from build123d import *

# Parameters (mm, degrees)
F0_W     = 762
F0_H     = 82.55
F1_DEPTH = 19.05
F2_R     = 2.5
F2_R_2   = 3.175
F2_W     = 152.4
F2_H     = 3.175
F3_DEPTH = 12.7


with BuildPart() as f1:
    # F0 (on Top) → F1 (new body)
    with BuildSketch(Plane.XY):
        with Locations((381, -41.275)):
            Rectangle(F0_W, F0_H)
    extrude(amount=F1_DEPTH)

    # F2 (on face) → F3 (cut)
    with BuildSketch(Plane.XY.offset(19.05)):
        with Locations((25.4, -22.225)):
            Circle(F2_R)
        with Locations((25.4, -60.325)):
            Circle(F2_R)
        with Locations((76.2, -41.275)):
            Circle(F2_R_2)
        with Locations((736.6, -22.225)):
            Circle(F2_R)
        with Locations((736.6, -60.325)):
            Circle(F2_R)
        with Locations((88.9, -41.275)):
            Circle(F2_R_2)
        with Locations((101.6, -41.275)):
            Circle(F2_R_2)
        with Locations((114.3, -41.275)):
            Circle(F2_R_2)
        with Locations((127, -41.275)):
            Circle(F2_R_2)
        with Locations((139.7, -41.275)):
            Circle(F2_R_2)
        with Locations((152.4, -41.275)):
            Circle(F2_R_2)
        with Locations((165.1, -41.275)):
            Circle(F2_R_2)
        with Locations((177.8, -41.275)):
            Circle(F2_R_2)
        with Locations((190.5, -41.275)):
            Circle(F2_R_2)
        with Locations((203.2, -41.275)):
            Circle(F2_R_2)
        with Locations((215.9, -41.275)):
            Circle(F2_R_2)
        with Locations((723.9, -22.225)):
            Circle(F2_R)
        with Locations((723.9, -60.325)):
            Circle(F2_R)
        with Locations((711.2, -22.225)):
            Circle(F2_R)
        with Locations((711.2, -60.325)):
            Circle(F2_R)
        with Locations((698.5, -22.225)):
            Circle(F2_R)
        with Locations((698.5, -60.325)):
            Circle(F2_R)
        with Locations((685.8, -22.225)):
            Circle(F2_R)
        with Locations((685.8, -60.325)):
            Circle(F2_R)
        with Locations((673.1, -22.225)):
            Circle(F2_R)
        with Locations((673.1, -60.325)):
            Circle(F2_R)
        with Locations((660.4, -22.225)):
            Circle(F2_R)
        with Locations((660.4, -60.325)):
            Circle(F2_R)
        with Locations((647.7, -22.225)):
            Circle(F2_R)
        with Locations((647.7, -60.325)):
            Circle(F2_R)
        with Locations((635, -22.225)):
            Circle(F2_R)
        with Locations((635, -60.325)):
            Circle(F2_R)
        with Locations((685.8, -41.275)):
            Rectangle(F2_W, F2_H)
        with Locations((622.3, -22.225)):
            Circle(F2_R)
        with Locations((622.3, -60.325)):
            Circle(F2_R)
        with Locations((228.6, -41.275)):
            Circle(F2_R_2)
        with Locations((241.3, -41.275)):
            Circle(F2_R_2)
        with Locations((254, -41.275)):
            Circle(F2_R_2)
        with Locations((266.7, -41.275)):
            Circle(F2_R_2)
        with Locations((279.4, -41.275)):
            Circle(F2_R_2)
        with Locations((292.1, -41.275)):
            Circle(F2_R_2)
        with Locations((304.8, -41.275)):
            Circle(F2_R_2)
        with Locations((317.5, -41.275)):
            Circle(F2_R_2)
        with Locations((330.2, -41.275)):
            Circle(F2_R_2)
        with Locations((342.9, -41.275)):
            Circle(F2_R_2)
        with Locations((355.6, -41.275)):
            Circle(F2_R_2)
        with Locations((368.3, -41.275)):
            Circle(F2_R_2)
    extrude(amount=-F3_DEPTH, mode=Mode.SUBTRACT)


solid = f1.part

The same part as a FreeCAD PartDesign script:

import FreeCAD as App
import Part
import Sketcher
from FreeCAD import Vector
Q = App.Units.Quantity


def add_polygon(sketch, points):
    """Adds a closed chain of lines whose ends are joined by coincident constraints."""
    first, n = sketch.GeometryCount, len(points)
    for a, b in zip(points, points[1:] + points[:1]):
        sketch.addGeometry(Part.LineSegment(App.Vector(*a, 0), App.Vector(*b, 0)), False)
    for i in range(n):
        sketch.addConstraint(Sketcher.Constraint("Coincident", first + i, 2, first + (i + 1) % n, 1))

doc = App.newDocument("Part")
params = doc.addObject("Spreadsheet::Sheet", "Params")
for row, (alias, value) in enumerate([
    ("sketch1_width", "30 in"),
    ("sketch1_height", "3.25 in"),
    ("pad1_length", "0.75 in"),
    ("sketch2_diameter", "0.25 in"),
    ("sketch2_width", "6 in"),
    ("sketch2_height", "0.125 in"),
    ("pocket1_length", "0.5 in"),
], start=1):
    params.set(f"A{row}", alias)
    params.set(f"B{row}", "=" + value)
    params.setAlias(f"B{row}", alias)

body = doc.addObject("PartDesign::Body", "Body")

# Sketch on XY plane
sketch1 = body.newObject("Sketcher::SketchObject", "Sketch")
sketch1.AttachmentSupport = (doc.getObject("XY_Plane"), [""])
sketch1.MapMode = "FlatFace"
add_polygon(sketch1, [(0, 0), (0, -83), (762, -83), (762, 0)])  # lines 0-3
sketch1.addConstraint(Sketcher.Constraint("Vertical", 0))
sketch1.addConstraint(Sketcher.Constraint("Horizontal", 1))
sketch1.addConstraint(Sketcher.Constraint("Vertical", 2))
sketch1.addConstraint(Sketcher.Constraint("Horizontal", 3))
sketch1.addConstraint(Sketcher.Constraint("Coincident", 3, 2, -1, 1))
sketch1.addConstraint(Sketcher.Constraint("DistanceX", 1, 1, 1, 2, Q("30 in")))
sketch1.addConstraint(Sketcher.Constraint("DistanceY", 0, 2, 0, 1, Q("3.25 in")))
sketch1.setExpression("Constraints[9]", "Params.sketch1_width")
sketch1.setExpression("Constraints[10]", "Params.sketch1_height")
pad1 = body.newObject("PartDesign::Pad", "Pad")
pad1.Profile = sketch1
pad1.setExpression("Length", "Params.pad1_length")

# Sketch on XY plane
sketch2 = body.newObject("Sketcher::SketchObject", "Sketch001")
sketch2.AttachmentSupport = (doc.getObject("XY_Plane"), [""])
sketch2.MapMode = "FlatFace"
sketch2.AttachmentOffset = App.Placement(Vector(0, 0, 0.75 * 25.4), App.Rotation())
sketch2.addGeometry(Part.Circle(Vector(25.4, -22.2, 0), Vector(0, 0, 1), 2.5), False)  # 0
sketch2.addGeometry(Part.Circle(Vector(25.4, -60.3, 0), Vector(0, 0, 1), 2.5), False)  # 1
sketch2.addGeometry(Part.Circle(Vector(76.2, -41.3, 0), Vector(0, 0, 1), 3.2), False)  # 2
sketch2.addGeometry(Part.Circle(Vector(736.6, -22.2, 0), Vector(0, 0, 1), 2.5), False)  # 3
sketch2.addGeometry(Part.Circle(Vector(736.6, -60.3, 0), Vector(0, 0, 1), 2.5), False)  # 4
sketch2.addGeometry(Part.Circle(Vector(88.9, -41.3, 0), Vector(0, 0, 1), 3.2), False)  # 5
sketch2.addGeometry(Part.Circle(Vector(101.6, -41.3, 0), Vector(0, 0, 1), 3.2), False)  # 6
sketch2.addGeometry(Part.Circle(Vector(114.3, -41.3, 0), Vector(0, 0, 1), 3.2), False)  # 7
sketch2.addGeometry(Part.Circle(Vector(127, -41.3, 0), Vector(0, 0, 1), 3.2), False)  # 8
sketch2.addGeometry(Part.Circle(Vector(139.7, -41.3, 0), Vector(0, 0, 1), 3.2), False)  # 9
sketch2.addGeometry(Part.Circle(Vector(152.4, -41.3, 0), Vector(0, 0, 1), 3.2), False)  # 10
sketch2.addGeometry(Part.Circle(Vector(165.1, -41.3, 0), Vector(0, 0, 1), 3.2), False)  # 11
sketch2.addGeometry(Part.Circle(Vector(177.8, -41.3, 0), Vector(0, 0, 1), 3.2), False)  # 12
sketch2.addGeometry(Part.Circle(Vector(190.5, -41.3, 0), Vector(0, 0, 1), 3.2), False)  # 13
sketch2.addGeometry(Part.Circle(Vector(203.2, -41.3, 0), Vector(0, 0, 1), 3.2), False)  # 14
sketch2.addGeometry(Part.Circle(Vector(215.9, -41.3, 0), Vector(0, 0, 1), 3.2), False)  # 15
sketch2.addGeometry(Part.Circle(Vector(723.9, -22.2, 0), Vector(0, 0, 1), 2.5), False)  # 16
sketch2.addGeometry(Part.Circle(Vector(723.9, -60.3, 0), Vector(0, 0, 1), 2.5), False)  # 17
sketch2.addGeometry(Part.Circle(Vector(711.2, -22.2, 0), Vector(0, 0, 1), 2.5), False)  # 18
sketch2.addGeometry(Part.Circle(Vector(711.2, -60.3, 0), Vector(0, 0, 1), 2.5), False)  # 19
sketch2.addGeometry(Part.Circle(Vector(698.5, -22.2, 0), Vector(0, 0, 1), 2.5), False)  # 20
sketch2.addGeometry(Part.Circle(Vector(698.5, -60.3, 0), Vector(0, 0, 1), 2.5), False)  # 21
sketch2.addGeometry(Part.Circle(Vector(685.8, -22.2, 0), Vector(0, 0, 1), 2.5), False)  # 22
sketch2.addGeometry(Part.Circle(Vector(685.8, -60.3, 0), Vector(0, 0, 1), 2.5), False)  # 23
sketch2.addGeometry(Part.Circle(Vector(673.1, -22.2, 0), Vector(0, 0, 1), 2.5), False)  # 24
sketch2.addGeometry(Part.Circle(Vector(673.1, -60.3, 0), Vector(0, 0, 1), 2.5), False)  # 25
sketch2.addGeometry(Part.Circle(Vector(660.4, -22.2, 0), Vector(0, 0, 1), 2.5), False)  # 26
sketch2.addGeometry(Part.Circle(Vector(660.4, -60.3, 0), Vector(0, 0, 1), 2.5), False)  # 27
sketch2.addGeometry(Part.Circle(Vector(647.7, -22.2, 0), Vector(0, 0, 1), 2.5), False)  # 28
sketch2.addGeometry(Part.Circle(Vector(647.7, -60.3, 0), Vector(0, 0, 1), 2.5), False)  # 29
sketch2.addGeometry(Part.Circle(Vector(635, -22.2, 0), Vector(0, 0, 1), 2.5), False)  # 30
sketch2.addGeometry(Part.Circle(Vector(635, -60.3, 0), Vector(0, 0, 1), 2.5), False)  # 31
add_polygon(sketch2, [(609.6, -39.7), (609.6, -42.9), (762, -42.9), (762, -39.7)])  # lines 32-35
sketch2.addGeometry(Part.Circle(Vector(622.3, -22.2, 0), Vector(0, 0, 1), 2.5), False)  # 36
sketch2.addGeometry(Part.Circle(Vector(622.3, -60.3, 0), Vector(0, 0, 1), 2.5), False)  # 37
sketch2.addGeometry(Part.Circle(Vector(228.6, -41.3, 0), Vector(0, 0, 1), 3.2), False)  # 38
sketch2.addGeometry(Part.Circle(Vector(241.3, -41.3, 0), Vector(0, 0, 1), 3.2), False)  # 39
sketch2.addGeometry(Part.Circle(Vector(254, -41.3, 0), Vector(0, 0, 1), 3.2), False)  # 40
sketch2.addGeometry(Part.Circle(Vector(266.7, -41.3, 0), Vector(0, 0, 1), 3.2), False)  # 41
sketch2.addGeometry(Part.Circle(Vector(279.4, -41.3, 0), Vector(0, 0, 1), 3.2), False)  # 42
sketch2.addGeometry(Part.Circle(Vector(292.1, -41.3, 0), Vector(0, 0, 1), 3.2), False)  # 43
sketch2.addGeometry(Part.Circle(Vector(304.8, -41.3, 0), Vector(0, 0, 1), 3.2), False)  # 44
sketch2.addGeometry(Part.Circle(Vector(317.5, -41.3, 0), Vector(0, 0, 1), 3.2), False)  # 45
sketch2.addGeometry(Part.Circle(Vector(330.2, -41.3, 0), Vector(0, 0, 1), 3.2), False)  # 46
sketch2.addGeometry(Part.Circle(Vector(342.9, -41.3, 0), Vector(0, 0, 1), 3.2), False)  # 47
sketch2.addGeometry(Part.Circle(Vector(355.6, -41.3, 0), Vector(0, 0, 1), 3.2), False)  # 48
sketch2.addGeometry(Part.Circle(Vector(368.3, -41.3, 0), Vector(0, 0, 1), 3.2), False)  # 49
sketch2.addConstraint(Sketcher.Constraint("Vertical", 32))
sketch2.addConstraint(Sketcher.Constraint("Horizontal", 33))
sketch2.addConstraint(Sketcher.Constraint("Vertical", 34))
sketch2.addConstraint(Sketcher.Constraint("Horizontal", 35))
sketch2.addConstraint(Sketcher.Constraint("Equal", 0, 1))
sketch2.addConstraint(Sketcher.Constraint("Equal", 1, 3))
sketch2.addConstraint(Sketcher.Constraint("Equal", 3, 4))
sketch2.addConstraint(Sketcher.Constraint("Equal", 2, 5))
sketch2.addConstraint(Sketcher.Constraint("Equal", 5, 6))
sketch2.addConstraint(Sketcher.Constraint("Equal", 6, 7))
sketch2.addConstraint(Sketcher.Constraint("Equal", 7, 8))
sketch2.addConstraint(Sketcher.Constraint("Equal", 8, 9))
sketch2.addConstraint(Sketcher.Constraint("Equal", 9, 10))
sketch2.addConstraint(Sketcher.Constraint("Equal", 10, 11))
sketch2.addConstraint(Sketcher.Constraint("Equal", 11, 12))
sketch2.addConstraint(Sketcher.Constraint("Equal", 12, 13))
sketch2.addConstraint(Sketcher.Constraint("Equal", 13, 14))
sketch2.addConstraint(Sketcher.Constraint("Equal", 14, 15))
sketch2.addConstraint(Sketcher.Constraint("Equal", 4, 16))
sketch2.addConstraint(Sketcher.Constraint("Equal", 16, 17))
sketch2.addConstraint(Sketcher.Constraint("Equal", 17, 18))
sketch2.addConstraint(Sketcher.Constraint("Equal", 18, 19))
sketch2.addConstraint(Sketcher.Constraint("Equal", 19, 20))
sketch2.addConstraint(Sketcher.Constraint("Equal", 20, 21))
sketch2.addConstraint(Sketcher.Constraint("Equal", 21, 22))
sketch2.addConstraint(Sketcher.Constraint("Equal", 22, 23))
sketch2.addConstraint(Sketcher.Constraint("Equal", 23, 24))
sketch2.addConstraint(Sketcher.Constraint("Equal", 24, 25))
sketch2.addConstraint(Sketcher.Constraint("Equal", 25, 26))
sketch2.addConstraint(Sketcher.Constraint("Equal", 26, 27))
sketch2.addConstraint(Sketcher.Constraint("Equal", 27, 28))
sketch2.addConstraint(Sketcher.Constraint("Equal", 28, 29))
sketch2.addConstraint(Sketcher.Constraint("Equal", 29, 30))
sketch2.addConstraint(Sketcher.Constraint("Equal", 30, 31))
sketch2.addConstraint(Sketcher.Constraint("Equal", 31, 36))
sketch2.addConstraint(Sketcher.Constraint("Equal", 36, 37))
sketch2.addConstraint(Sketcher.Constraint("Equal", 15, 38))
sketch2.addConstraint(Sketcher.Constraint("Equal", 38, 39))
sketch2.addConstraint(Sketcher.Constraint("Equal", 39, 40))
sketch2.addConstraint(Sketcher.Constraint("Equal", 40, 41))
sketch2.addConstraint(Sketcher.Constraint("Equal", 41, 42))
sketch2.addConstraint(Sketcher.Constraint("Equal", 42, 43))
sketch2.addConstraint(Sketcher.Constraint("Equal", 43, 44))
sketch2.addConstraint(Sketcher.Constraint("Equal", 44, 45))
sketch2.addConstraint(Sketcher.Constraint("Equal", 45, 46))
sketch2.addConstraint(Sketcher.Constraint("Equal", 46, 47))
sketch2.addConstraint(Sketcher.Constraint("Equal", 47, 48))
sketch2.addConstraint(Sketcher.Constraint("Equal", 48, 49))
sketch2.addConstraint(Sketcher.Constraint("Horizontal", 0, 3, 3, 3))
sketch2.addConstraint(Sketcher.Constraint("Horizontal", 1, 3, 4, 3))
sketch2.addConstraint(Sketcher.Constraint("Horizontal", 2, 3, 5, 3))
sketch2.addConstraint(Sketcher.Constraint("Horizontal", 5, 3, 6, 3))
sketch2.addConstraint(Sketcher.Constraint("Horizontal", 6, 3, 7, 3))
sketch2.addConstraint(Sketcher.Constraint("Horizontal", 7, 3, 8, 3))
sketch2.addConstraint(Sketcher.Constraint("Horizontal", 8, 3, 9, 3))
sketch2.addConstraint(Sketcher.Constraint("Horizontal", 9, 3, 10, 3))
sketch2.addConstraint(Sketcher.Constraint("Horizontal", 10, 3, 11, 3))
sketch2.addConstraint(Sketcher.Constraint("Horizontal", 11, 3, 12, 3))
sketch2.addConstraint(Sketcher.Constraint("Horizontal", 12, 3, 13, 3))
sketch2.addConstraint(Sketcher.Constraint("Horizontal", 13, 3, 14, 3))
sketch2.addConstraint(Sketcher.Constraint("Horizontal", 14, 3, 15, 3))
sketch2.addConstraint(Sketcher.Constraint("Horizontal", 3, 3, 16, 3))
sketch2.addConstraint(Sketcher.Constraint("Horizontal", 4, 3, 17, 3))
sketch2.addConstraint(Sketcher.Constraint("Horizontal", 16, 3, 18, 3))
sketch2.addConstraint(Sketcher.Constraint("Horizontal", 17, 3, 19, 3))
sketch2.addConstraint(Sketcher.Constraint("Horizontal", 18, 3, 20, 3))
sketch2.addConstraint(Sketcher.Constraint("Horizontal", 19, 3, 21, 3))
sketch2.addConstraint(Sketcher.Constraint("Horizontal", 20, 3, 22, 3))
sketch2.addConstraint(Sketcher.Constraint("Horizontal", 21, 3, 23, 3))
sketch2.addConstraint(Sketcher.Constraint("Horizontal", 22, 3, 24, 3))
sketch2.addConstraint(Sketcher.Constraint("Horizontal", 23, 3, 25, 3))
sketch2.addConstraint(Sketcher.Constraint("Horizontal", 24, 3, 26, 3))
sketch2.addConstraint(Sketcher.Constraint("Horizontal", 25, 3, 27, 3))
sketch2.addConstraint(Sketcher.Constraint("Horizontal", 26, 3, 28, 3))
sketch2.addConstraint(Sketcher.Constraint("Horizontal", 27, 3, 29, 3))
sketch2.addConstraint(Sketcher.Constraint("Horizontal", 28, 3, 30, 3))
sketch2.addConstraint(Sketcher.Constraint("Horizontal", 29, 3, 31, 3))
sketch2.addConstraint(Sketcher.Constraint("Horizontal", 30, 3, 36, 3))
sketch2.addConstraint(Sketcher.Constraint("Horizontal", 31, 3, 37, 3))
sketch2.addConstraint(Sketcher.Constraint("Horizontal", 15, 3, 38, 3))
sketch2.addConstraint(Sketcher.Constraint("Horizontal", 38, 3, 39, 3))
sketch2.addConstraint(Sketcher.Constraint("Horizontal", 39, 3, 40, 3))
sketch2.addConstraint(Sketcher.Constraint("Horizontal", 40, 3, 41, 3))
sketch2.addConstraint(Sketcher.Constraint("Horizontal", 41, 3, 42, 3))
sketch2.addConstraint(Sketcher.Constraint("Horizontal", 42, 3, 43, 3))
sketch2.addConstraint(Sketcher.Constraint("Horizontal", 43, 3, 44, 3))
sketch2.addConstraint(Sketcher.Constraint("Horizontal", 44, 3, 45, 3))
sketch2.addConstraint(Sketcher.Constraint("Horizontal", 45, 3, 46, 3))
sketch2.addConstraint(Sketcher.Constraint("Horizontal", 46, 3, 47, 3))
sketch2.addConstraint(Sketcher.Constraint("Horizontal", 47, 3, 48, 3))
sketch2.addConstraint(Sketcher.Constraint("Horizontal", 48, 3, 49, 3))
sketch2.addConstraint(Sketcher.Constraint("Vertical", 0, 3, 1, 3))
sketch2.addConstraint(Sketcher.Constraint("Vertical", 3, 3, 4, 3))
sketch2.addConstraint(Sketcher.Constraint("Vertical", 16, 3, 17, 3))
sketch2.addConstraint(Sketcher.Constraint("Vertical", 18, 3, 19, 3))
sketch2.addConstraint(Sketcher.Constraint("Vertical", 20, 3, 21, 3))
sketch2.addConstraint(Sketcher.Constraint("Vertical", 22, 3, 23, 3))
sketch2.addConstraint(Sketcher.Constraint("Vertical", 24, 3, 25, 3))
sketch2.addConstraint(Sketcher.Constraint("Vertical", 26, 3, 27, 3))
sketch2.addConstraint(Sketcher.Constraint("Vertical", 28, 3, 29, 3))
sketch2.addConstraint(Sketcher.Constraint("Vertical", 30, 3, 31, 3))
sketch2.addConstraint(Sketcher.Constraint("Vertical", 36, 3, 37, 3))
sketch2.addConstraint(Sketcher.Constraint("Diameter", 2, Q("0.25 in")))
sketch2.addConstraint(Sketcher.Constraint("DistanceX", 33, 1, 33, 2, Q("6 in")))
sketch2.addConstraint(Sketcher.Constraint("DistanceX", -1, 1, 0, 3, Q("1 in")))
sketch2.addConstraint(Sketcher.Constraint("DistanceX", -1, 1, 2, 3, Q("3 in")))
sketch2.addConstraint(Sketcher.Constraint("DistanceX", -1, 1, 3, 3, Q("29 in")))
sketch2.addConstraint(Sketcher.Constraint("DistanceX", -1, 1, 6, 3, Q("4 in")))
sketch2.addConstraint(Sketcher.Constraint("DistanceX", -1, 1, 8, 3, Q("5 in")))
sketch2.addConstraint(Sketcher.Constraint("DistanceX", -1, 1, 10, 3, Q("6 in")))
sketch2.addConstraint(Sketcher.Constraint("DistanceX", -1, 1, 12, 3, Q("7 in")))
sketch2.addConstraint(Sketcher.Constraint("DistanceX", -1, 1, 14, 3, Q("8 in")))
sketch2.addConstraint(Sketcher.Constraint("DistanceX", -1, 1, 18, 3, Q("28 in")))
sketch2.addConstraint(Sketcher.Constraint("DistanceX", -1, 1, 22, 3, Q("27 in")))
sketch2.addConstraint(Sketcher.Constraint("DistanceX", -1, 1, 26, 3, Q("26 in")))
sketch2.addConstraint(Sketcher.Constraint("DistanceX", -1, 1, 30, 3, Q("25 in")))
sketch2.addConstraint(Sketcher.Constraint("DistanceX", -1, 1, 38, 3, Q("9 in")))
sketch2.addConstraint(Sketcher.Constraint("DistanceX", -1, 1, 40, 3, Q("10 in")))
sketch2.addConstraint(Sketcher.Constraint("DistanceX", -1, 1, 42, 3, Q("11 in")))
sketch2.addConstraint(Sketcher.Constraint("DistanceX", -1, 1, 44, 3, Q("12 in")))
sketch2.addConstraint(Sketcher.Constraint("DistanceX", -1, 1, 46, 3, Q("13 in")))
sketch2.addConstraint(Sketcher.Constraint("DistanceX", -1, 1, 48, 3, Q("14 in")))
sketch2.addConstraint(Sketcher.Constraint("DistanceX", -1, 1, 32, 2, Q("24 in")))
sketch2.addConstraint(Sketcher.Constraint("DistanceX", 5, 3, 7, 3, Q("1 in")))
sketch2.addConstraint(Sketcher.Constraint("DistanceX", 7, 3, 9, 3, Q("1 in")))
sketch2.addConstraint(Sketcher.Constraint("DistanceX", 9, 3, 11, 3, Q("1 in")))
sketch2.addConstraint(Sketcher.Constraint("DistanceX", 11, 3, 13, 3, Q("1 in")))
sketch2.addConstraint(Sketcher.Constraint("DistanceX", 13, 3, 15, 3, Q("1 in")))
sketch2.addConstraint(Sketcher.Constraint("DistanceX", 15, 3, 16, 3, Q("20 in")))
sketch2.addConstraint(Sketcher.Constraint("DistanceX", 20, 3, 16, 3, Q("1 in")))
sketch2.addConstraint(Sketcher.Constraint("DistanceX", 24, 3, 20, 3, Q("1 in")))
sketch2.addConstraint(Sketcher.Constraint("DistanceX", 28, 3, 24, 3, Q("1 in")))
sketch2.addConstraint(Sketcher.Constraint("DistanceX", 36, 3, 28, 3, Q("1 in")))
sketch2.addConstraint(Sketcher.Constraint("DistanceX", 15, 3, 39, 3, Q("1 in")))
sketch2.addConstraint(Sketcher.Constraint("DistanceX", 39, 3, 41, 3, Q("1 in")))
sketch2.addConstraint(Sketcher.Constraint("DistanceX", 41, 3, 43, 3, Q("1 in")))
sketch2.addConstraint(Sketcher.Constraint("DistanceX", 43, 3, 45, 3, Q("1 in")))
sketch2.addConstraint(Sketcher.Constraint("DistanceX", 45, 3, 47, 3, Q("1 in")))
sketch2.addConstraint(Sketcher.Constraint("DistanceX", 47, 3, 49, 3, Q("1 in")))
sketch2.addConstraint(Sketcher.Constraint("DistanceX", -1, 1, 5, 3, Q("3.5 in")))
sketch2.addConstraint(Sketcher.Constraint("DistanceY", 1, 3, 0, 3, Q("1.5 in")))
sketch2.addConstraint(Sketcher.Constraint("Diameter", 0, Q("5 mm")))
sketch2.addConstraint(Sketcher.Constraint("DistanceY", 32, 2, 32, 1, Q("0.125 in")))
sketch2.addConstraint(Sketcher.Constraint("DistanceY", 2, 3, 0, 3, Q("0.75 in")))
sketch2.addConstraint(Sketcher.Constraint("DistanceY", 0, 3, -1, 1, Q("0.875 in")))
sketch2.addConstraint(Sketcher.Constraint("DistanceY", 32, 2, -1, 1, Q("1.6875 in")))
sketch2.setExpression("Constraints[106]", "Params.sketch2_diameter")
sketch2.setExpression("Constraints[107]", "Params.sketch2_width")
sketch2.setExpression("Constraints[146]", "Params.sketch2_height")
pocket1 = body.newObject("PartDesign::Pocket", "Pocket")
pocket1.Profile = sketch2
pocket1.setExpression("Length", "Params.pocket1_length")

doc.recompute()
